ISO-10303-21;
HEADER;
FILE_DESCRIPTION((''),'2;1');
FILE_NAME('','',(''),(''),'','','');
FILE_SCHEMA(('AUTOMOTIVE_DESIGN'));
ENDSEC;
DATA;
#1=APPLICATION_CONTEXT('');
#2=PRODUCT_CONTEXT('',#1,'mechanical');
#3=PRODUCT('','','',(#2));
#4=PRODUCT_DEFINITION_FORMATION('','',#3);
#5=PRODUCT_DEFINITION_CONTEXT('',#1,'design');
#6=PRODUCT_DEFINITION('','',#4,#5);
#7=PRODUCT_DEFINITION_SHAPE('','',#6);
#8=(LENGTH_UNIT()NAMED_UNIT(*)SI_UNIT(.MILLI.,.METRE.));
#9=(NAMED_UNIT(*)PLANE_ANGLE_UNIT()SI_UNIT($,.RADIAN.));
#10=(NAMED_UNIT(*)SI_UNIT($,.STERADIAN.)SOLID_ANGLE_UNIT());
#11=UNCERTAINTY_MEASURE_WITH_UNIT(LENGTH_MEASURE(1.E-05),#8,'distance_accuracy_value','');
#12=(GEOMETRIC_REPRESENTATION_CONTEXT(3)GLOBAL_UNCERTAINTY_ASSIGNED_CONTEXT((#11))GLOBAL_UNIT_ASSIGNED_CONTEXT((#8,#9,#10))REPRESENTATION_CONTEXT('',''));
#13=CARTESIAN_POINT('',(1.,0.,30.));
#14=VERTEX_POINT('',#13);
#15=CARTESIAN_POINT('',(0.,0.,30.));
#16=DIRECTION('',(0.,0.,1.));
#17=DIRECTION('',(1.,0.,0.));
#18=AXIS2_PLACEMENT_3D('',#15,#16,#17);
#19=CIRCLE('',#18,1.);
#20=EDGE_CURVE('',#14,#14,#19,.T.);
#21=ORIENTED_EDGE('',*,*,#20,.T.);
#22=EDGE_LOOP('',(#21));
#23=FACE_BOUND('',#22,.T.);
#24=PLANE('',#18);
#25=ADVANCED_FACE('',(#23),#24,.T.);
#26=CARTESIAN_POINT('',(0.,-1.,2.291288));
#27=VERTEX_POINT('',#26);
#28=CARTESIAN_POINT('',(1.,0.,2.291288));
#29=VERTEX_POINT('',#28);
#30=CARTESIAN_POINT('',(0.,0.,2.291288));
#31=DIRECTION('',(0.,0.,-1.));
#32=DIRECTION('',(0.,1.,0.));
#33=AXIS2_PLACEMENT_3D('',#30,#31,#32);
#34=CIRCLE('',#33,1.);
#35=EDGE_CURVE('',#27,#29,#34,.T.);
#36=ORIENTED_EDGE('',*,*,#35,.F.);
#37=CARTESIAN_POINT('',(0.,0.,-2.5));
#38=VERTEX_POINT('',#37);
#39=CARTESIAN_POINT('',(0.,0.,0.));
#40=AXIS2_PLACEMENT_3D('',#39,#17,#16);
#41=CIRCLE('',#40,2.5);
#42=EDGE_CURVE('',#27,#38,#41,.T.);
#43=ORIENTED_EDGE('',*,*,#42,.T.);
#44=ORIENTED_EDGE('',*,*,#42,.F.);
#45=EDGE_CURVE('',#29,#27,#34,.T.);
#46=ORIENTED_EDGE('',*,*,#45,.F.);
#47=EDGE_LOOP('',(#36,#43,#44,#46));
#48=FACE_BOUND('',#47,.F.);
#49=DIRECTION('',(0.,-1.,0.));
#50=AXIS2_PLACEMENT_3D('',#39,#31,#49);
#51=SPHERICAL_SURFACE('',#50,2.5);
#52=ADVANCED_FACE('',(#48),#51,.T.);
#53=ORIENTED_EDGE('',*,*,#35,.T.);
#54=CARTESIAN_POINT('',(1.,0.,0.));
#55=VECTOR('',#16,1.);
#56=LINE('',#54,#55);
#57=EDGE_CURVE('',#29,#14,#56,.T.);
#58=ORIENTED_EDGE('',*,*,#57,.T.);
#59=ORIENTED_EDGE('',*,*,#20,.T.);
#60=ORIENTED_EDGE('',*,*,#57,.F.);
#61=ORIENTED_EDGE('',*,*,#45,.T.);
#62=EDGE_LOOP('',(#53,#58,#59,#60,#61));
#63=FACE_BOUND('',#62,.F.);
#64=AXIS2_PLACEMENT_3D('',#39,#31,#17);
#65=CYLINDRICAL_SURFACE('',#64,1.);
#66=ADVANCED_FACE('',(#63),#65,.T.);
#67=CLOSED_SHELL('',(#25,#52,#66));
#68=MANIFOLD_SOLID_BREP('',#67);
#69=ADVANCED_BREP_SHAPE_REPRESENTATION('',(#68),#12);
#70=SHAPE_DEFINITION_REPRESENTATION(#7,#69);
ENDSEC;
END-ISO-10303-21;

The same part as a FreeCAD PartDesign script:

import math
import FreeCAD as App
import Part
import Sketcher

V = App.Vector
Q = App.Units.Quantity

doc = App.newDocument("Part")
body = doc.addObject("PartDesign::Body", "Body")

# Sketch on XY plane
sketch1 = doc.addObject("Sketcher::SketchObject", "Sketch")
body.addObject(sketch1)
sketch1.AttachmentSupport = (doc.XY_Plane, [""])
sketch1.MapMode = "FlatFace"
sketch1.addGeometry(Part.Circle(V(0, 0, 0), V(0, 0, 1), 1), False)
sketch1.addConstraint([
    Sketcher.Constraint("Coincident", 0, 3, -1, 1),
    Sketcher.Constraint("Diameter", 0, Q("2 mm")),
])
pad1 = doc.addObject("PartDesign::Pad", "Pad")
body.addObject(pad1)
pad1.Profile = sketch1
pad1.Length = 30

# Sketch on YZ plane
sketch2 = doc.addObject("Sketcher::SketchObject", "Sketch001")
body.addObject(sketch2)
sketch2.AttachmentSupport = (doc.YZ_Plane, [""])
sketch2.MapMode = "FlatFace"
sketch2.addGeometry([
    Part.LineSegment(V(0, -2.5, 0), V(0, 2.5, 0)),
    Part.ArcOfCircle(Part.Circle(V(0, 0, 0), V(0, 0, 1), 2.5), math.radians(90), math.radians(270)),
], False)
sketch2.addConstraint([
    Sketcher.Constraint("Coincident", 0, 1, 1, 2),
    Sketcher.Constraint("Coincident", 1, 1, 0, 2),
    Sketcher.Constraint("Vertical", 0),
    Sketcher.Constraint("Coincident", 1, 3, -1, 1),
    Sketcher.Constraint("PointOnObject", 0, 1, -2),
    Sketcher.Constraint("Radius", 1, Q("2.5 mm")),
])
revolution = doc.addObject("PartDesign::Revolution", "Revolution")
body.addObject(revolution)
revolution.Profile = sketch2
revolution.ReferenceAxis = (sketch2, ["V_Axis"])
revolution.Angle = 360

doc.recompute()
